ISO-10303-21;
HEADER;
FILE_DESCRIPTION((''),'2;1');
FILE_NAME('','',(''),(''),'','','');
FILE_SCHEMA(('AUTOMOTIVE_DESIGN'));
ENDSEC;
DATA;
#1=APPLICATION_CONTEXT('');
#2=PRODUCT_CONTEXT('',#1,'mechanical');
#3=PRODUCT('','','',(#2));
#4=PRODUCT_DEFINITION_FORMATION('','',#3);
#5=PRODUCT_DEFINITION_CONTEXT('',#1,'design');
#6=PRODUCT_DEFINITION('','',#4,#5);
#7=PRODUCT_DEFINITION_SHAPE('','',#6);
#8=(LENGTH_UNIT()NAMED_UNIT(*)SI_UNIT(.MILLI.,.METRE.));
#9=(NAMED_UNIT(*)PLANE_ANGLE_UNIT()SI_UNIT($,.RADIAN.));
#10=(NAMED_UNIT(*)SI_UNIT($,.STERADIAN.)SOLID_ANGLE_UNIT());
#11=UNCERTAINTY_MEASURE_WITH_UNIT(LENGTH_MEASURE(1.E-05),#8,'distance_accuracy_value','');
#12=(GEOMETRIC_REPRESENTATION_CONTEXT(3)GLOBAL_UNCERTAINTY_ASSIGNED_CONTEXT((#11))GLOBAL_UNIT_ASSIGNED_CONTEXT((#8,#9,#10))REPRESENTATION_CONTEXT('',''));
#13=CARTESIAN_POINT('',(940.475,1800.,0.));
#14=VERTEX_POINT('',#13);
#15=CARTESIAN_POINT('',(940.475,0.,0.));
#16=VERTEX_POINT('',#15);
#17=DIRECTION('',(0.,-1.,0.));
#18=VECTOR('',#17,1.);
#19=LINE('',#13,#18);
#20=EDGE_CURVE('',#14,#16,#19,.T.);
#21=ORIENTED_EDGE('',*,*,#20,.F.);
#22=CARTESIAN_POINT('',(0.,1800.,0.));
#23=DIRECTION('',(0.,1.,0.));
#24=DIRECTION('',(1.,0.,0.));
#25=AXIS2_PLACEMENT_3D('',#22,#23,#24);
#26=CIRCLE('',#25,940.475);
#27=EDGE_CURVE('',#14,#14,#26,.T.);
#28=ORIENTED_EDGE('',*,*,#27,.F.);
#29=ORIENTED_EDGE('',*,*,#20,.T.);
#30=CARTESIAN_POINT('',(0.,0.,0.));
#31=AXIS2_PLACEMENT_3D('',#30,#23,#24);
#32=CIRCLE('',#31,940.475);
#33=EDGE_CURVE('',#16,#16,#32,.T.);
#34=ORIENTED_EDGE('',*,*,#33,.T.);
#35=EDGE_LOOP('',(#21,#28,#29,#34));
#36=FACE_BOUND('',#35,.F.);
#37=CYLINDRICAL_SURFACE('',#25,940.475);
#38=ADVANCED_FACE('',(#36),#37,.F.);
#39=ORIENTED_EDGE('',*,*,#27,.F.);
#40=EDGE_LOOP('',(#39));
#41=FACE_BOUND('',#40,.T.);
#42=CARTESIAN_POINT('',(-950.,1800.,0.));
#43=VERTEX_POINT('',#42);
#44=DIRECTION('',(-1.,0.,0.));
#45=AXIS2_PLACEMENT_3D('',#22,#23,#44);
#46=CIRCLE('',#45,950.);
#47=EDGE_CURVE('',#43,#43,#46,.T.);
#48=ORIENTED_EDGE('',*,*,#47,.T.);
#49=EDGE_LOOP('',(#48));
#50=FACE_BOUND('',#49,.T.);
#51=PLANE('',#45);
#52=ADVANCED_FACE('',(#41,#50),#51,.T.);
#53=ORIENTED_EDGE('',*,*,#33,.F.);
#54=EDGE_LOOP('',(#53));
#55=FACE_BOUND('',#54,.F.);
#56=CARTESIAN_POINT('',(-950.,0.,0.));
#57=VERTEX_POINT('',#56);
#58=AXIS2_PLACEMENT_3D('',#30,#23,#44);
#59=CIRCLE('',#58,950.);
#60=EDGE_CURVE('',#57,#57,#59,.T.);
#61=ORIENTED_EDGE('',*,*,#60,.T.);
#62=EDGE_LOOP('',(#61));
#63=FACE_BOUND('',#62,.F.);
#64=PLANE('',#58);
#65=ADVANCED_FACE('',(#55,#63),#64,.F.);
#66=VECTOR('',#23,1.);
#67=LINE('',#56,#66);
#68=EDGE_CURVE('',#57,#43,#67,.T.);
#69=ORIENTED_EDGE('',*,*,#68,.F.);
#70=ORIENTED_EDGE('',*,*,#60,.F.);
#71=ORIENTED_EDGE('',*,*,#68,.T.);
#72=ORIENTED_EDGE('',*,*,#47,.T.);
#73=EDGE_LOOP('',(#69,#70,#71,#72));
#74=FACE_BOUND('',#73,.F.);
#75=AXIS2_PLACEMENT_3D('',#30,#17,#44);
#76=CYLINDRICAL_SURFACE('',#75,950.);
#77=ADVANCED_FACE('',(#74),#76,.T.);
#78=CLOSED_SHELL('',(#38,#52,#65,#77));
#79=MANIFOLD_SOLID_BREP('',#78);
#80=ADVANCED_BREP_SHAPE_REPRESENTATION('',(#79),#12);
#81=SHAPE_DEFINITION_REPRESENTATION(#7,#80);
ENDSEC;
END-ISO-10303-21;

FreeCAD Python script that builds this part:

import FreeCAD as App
import Part
import Sketcher
from FreeCAD import Vector
Q = App.Units.Quantity

doc = App.newDocument("Part")
body = doc.addObject("PartDesign::Body", "Body")

# Sketch on XZ plane
sketch1 = body.newObject("Sketcher::SketchObject", "Sketch")
sketch1.AttachmentSupport = (doc.getObject("XZ_Plane"), [""])
sketch1.MapMode = "FlatFace"
sketch1.addGeometry(Part.Circle(Vector(0, 0, 0), Vector(0, 0, 1), 950), False)
sketch1.addConstraint([
    Sketcher.Constraint("Coincident", 0, 3, -1, 1),
    Sketcher.Constraint("Diameter", 0, Q("1900 mm")),
])
pad1 = body.newObject("PartDesign::Pad", "Pad")
pad1.Profile = sketch1
pad1.Length = 1800
pad1.Reversed = True

# Sketch on XZ plane
sketch2 = body.newObject("Sketcher::SketchObject", "Sketch001")
sketch2.AttachmentSupport = (doc.getObject("XZ_Plane"), [""])
sketch2.MapMode = "FlatFace"
sketch2.AttachmentOffset = App.Placement(Vector(0, 0, -1800), App.Rotation())
sketch2.addGeometry(Part.Circle(Vector(0, 0, 0), Vector(0, 0, 1), 940), False)
sketch2.addConstraint([
    Sketcher.Constraint("Coincident", 0, 3, -1, 1),
    Sketcher.Constraint("Diameter", 0, Q("1880.95 mm")),
])
pocket1 = body.newObject("PartDesign::Pocket", "Pocket")
pocket1.Profile = sketch2
pocket1.Length = 1800
pocket1.Reversed = True

doc.recompute()
